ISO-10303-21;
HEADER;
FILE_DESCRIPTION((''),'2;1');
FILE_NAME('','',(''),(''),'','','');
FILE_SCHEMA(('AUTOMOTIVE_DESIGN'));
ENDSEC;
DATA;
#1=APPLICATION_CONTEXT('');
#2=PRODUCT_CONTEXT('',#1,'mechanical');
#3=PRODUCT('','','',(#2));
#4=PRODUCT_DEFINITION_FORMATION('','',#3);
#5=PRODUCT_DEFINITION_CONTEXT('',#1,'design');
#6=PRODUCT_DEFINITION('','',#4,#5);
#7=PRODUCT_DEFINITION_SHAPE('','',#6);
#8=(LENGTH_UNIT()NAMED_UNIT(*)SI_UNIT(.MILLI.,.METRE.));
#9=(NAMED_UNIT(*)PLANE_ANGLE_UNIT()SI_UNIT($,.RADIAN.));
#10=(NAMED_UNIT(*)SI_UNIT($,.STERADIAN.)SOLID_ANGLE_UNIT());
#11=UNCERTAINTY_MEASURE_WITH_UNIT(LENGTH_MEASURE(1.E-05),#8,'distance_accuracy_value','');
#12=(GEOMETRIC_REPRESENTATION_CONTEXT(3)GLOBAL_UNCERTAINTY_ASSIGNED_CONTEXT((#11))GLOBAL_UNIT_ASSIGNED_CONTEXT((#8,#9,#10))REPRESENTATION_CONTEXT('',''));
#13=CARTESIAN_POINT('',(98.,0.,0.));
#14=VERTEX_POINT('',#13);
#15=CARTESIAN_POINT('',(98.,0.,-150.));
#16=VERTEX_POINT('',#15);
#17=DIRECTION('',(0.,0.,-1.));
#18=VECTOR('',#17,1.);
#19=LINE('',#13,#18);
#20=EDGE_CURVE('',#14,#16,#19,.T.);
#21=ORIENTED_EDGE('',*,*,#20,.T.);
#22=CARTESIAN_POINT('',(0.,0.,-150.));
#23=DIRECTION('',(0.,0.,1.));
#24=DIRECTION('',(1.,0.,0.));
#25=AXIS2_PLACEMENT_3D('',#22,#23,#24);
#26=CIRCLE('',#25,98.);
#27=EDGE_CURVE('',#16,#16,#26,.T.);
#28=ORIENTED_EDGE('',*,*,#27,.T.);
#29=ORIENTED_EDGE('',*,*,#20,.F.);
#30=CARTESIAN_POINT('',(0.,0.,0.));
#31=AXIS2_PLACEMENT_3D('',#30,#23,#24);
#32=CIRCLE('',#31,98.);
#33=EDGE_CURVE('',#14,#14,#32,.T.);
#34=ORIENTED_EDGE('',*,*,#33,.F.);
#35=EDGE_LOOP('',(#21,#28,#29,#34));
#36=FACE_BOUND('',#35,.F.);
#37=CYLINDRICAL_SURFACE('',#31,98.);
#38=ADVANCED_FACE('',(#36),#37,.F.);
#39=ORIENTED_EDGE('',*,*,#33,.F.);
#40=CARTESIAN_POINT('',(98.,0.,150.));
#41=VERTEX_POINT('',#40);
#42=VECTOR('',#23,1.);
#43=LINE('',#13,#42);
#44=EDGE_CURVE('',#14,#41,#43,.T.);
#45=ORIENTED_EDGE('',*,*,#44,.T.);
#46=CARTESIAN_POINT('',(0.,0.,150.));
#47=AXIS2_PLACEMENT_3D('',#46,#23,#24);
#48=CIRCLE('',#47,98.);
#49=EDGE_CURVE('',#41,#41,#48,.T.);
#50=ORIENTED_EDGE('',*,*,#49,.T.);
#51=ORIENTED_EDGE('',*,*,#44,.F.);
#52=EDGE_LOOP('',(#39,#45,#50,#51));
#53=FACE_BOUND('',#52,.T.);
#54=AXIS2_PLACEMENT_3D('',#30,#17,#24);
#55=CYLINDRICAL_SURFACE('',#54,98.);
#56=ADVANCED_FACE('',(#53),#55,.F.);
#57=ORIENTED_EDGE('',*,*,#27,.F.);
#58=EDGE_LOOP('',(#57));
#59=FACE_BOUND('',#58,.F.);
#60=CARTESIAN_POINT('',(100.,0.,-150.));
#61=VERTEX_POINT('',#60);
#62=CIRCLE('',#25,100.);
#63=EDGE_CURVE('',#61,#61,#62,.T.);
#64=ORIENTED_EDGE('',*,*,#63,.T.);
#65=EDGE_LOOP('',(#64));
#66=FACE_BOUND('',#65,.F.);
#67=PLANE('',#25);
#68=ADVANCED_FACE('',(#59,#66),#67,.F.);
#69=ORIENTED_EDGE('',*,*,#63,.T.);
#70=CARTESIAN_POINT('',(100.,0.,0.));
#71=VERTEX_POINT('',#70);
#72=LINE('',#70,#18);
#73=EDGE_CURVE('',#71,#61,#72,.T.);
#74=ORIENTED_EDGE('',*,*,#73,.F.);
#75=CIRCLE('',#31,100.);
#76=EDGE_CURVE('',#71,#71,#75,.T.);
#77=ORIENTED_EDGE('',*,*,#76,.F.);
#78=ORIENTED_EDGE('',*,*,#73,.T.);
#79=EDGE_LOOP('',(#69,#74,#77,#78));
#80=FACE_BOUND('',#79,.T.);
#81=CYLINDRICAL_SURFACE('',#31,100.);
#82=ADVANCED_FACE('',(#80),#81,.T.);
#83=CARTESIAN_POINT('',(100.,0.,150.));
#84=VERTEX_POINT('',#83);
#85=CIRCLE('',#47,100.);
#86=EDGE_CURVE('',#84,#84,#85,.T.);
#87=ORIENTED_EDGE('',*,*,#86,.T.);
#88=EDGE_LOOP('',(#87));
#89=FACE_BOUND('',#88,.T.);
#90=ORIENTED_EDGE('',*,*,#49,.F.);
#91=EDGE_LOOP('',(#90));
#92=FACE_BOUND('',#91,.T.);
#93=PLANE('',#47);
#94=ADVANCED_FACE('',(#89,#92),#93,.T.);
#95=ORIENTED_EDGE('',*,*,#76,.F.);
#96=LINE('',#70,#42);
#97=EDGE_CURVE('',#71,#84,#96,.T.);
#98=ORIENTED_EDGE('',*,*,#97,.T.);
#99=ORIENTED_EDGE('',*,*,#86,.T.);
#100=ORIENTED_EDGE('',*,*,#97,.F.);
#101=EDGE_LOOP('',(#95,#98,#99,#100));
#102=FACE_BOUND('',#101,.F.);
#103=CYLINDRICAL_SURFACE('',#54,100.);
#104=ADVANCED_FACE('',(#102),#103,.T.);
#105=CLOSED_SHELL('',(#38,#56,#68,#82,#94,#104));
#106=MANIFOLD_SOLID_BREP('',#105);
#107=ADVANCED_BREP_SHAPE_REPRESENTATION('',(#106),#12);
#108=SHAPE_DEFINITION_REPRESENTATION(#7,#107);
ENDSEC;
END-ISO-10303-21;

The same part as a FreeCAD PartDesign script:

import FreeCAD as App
import Part
import Sketcher
from FreeCAD import Vector

doc = App.newDocument("Part")
params = doc.addObject("Spreadsheet::Sheet", "Params")
for row, (alias, value) in enumerate([
    ("sketch1_diameter", "200 mm"),
    ("sketch1_diameter2", "196 mm"),
    ("pad1_length", "300 mm"),
], start=1):
    params.set(f"A{row}", alias)
    params.set(f"B{row}", "=" + value)
    params.setAlias(f"B{row}", alias)

body = doc.addObject("PartDesign::Body", "Body")

# Sketch on XY plane
sketch1 = body.newObject("Sketcher::SketchObject", "Sketch")
sketch1.AttachmentSupport = (doc.getObject("XY_Plane"), [""])
sketch1.MapMode = "FlatFace"
sketch1.addGeometry(Part.Circle(Vector(0, 0, 0), Vector(0, 0, 1), 100), False)
sketch1.addGeometry(Part.Circle(Vector(0, 0, 0), Vector(0, 0, 1), 98), False)
sketch1.addConstraint(Sketcher.Constraint("Coincident", 0, 3, -1, 1))
sketch1.addConstraint(Sketcher.Constraint("Coincident", 1, 3, -1, 1))
sketch1.addConstraint(Sketcher.Constraint("Diameter", 0, 200.0))
sketch1.addConstraint(Sketcher.Constraint("Diameter", 1, 196.0))
sketch1.setExpression("Constraints[2]", "Params.sketch1_diameter")
sketch1.setExpression("Constraints[3]", "Params.sketch1_diameter2")
pad1 = body.newObject("PartDesign::Pad", "Pad")
pad1.Profile = sketch1
pad1.setExpression("Length", "Params.pad1_length")
pad1.Midplane = True

doc.recompute()
